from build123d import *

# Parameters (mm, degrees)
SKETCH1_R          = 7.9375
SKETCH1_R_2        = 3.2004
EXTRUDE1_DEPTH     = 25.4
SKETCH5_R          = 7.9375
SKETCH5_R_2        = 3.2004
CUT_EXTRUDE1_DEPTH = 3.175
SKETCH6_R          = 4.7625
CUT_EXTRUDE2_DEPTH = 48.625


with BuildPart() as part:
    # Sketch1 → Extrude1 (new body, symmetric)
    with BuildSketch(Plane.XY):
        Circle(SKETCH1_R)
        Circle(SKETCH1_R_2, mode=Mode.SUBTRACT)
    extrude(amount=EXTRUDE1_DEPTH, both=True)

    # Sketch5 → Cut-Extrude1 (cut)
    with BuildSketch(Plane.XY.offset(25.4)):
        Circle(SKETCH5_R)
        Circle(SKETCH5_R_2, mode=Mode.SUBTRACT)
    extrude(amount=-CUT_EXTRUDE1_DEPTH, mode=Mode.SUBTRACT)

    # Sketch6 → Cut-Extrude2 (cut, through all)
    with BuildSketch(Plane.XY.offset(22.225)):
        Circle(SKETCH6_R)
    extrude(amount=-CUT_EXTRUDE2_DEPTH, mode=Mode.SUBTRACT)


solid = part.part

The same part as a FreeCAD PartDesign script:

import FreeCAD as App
import Part
import Sketcher
Q = App.Units.Quantity

doc = App.newDocument("Part")
params = doc.addObject("Spreadsheet::Sheet", "Params")
for row, (alias, value) in enumerate([
    ("sketch1_diameter", "0.625 in"),
    ("sketch1_diameter2", "0.252 in"),
    ("pad1_length", "2 in"),
    ("sketch2_diameter", "0.625 in"),
    ("sketch2_diameter2", "0.252 in"),
    ("pocket1_length", "0.125 in"),
    ("sketch3_diameter", "0.375 in"),
], start=1):
    params.set(f"A{row}", alias)
    params.set(f"B{row}", "=" + value)
    params.setAlias(f"B{row}", alias)

body = doc.addObject("PartDesign::Body", "Body")

# Sketch on XY plane
sketch1 = body.newObject("Sketcher::SketchObject", "Sketch")
sketch1.AttachmentSupport = (doc.getObject("XY_Plane"), [""])
sketch1.MapMode = "FlatFace"
sketch1.addGeometry([
    Part.Circle(App.Vector(0, 0, 0), App.Vector(0, 0, 1), 7.9),
    Part.Circle(App.Vector(0, 0, 0), App.Vector(0, 0, 1), 3.2),
], False)
sketch1.addConstraint([
    Sketcher.Constraint("Coincident", 0, 3, -1, 1),
    Sketcher.Constraint("Coincident", 1, 3, -1, 1),
    Sketcher.Constraint("Diameter", 0, Q("0.625 in")),
    Sketcher.Constraint("Diameter", 1, Q("0.252 in")),
])
sketch1.setExpression("Constraints[2]", "Params.sketch1_diameter")
sketch1.setExpression("Constraints[3]", "Params.sketch1_diameter2")
pad1 = body.newObject("PartDesign::Pad", "Pad")
pad1.Profile = sketch1
pad1.setExpression("Length", "Params.pad1_length")
pad1.Midplane = True

# Sketch on XY plane
sketch2 = body.newObject("Sketcher::SketchObject", "Sketch001")
sketch2.AttachmentSupport = (doc.getObject("XY_Plane"), [""])
sketch2.MapMode = "FlatFace"
sketch2.AttachmentOffset = App.Placement(App.Vector(0, 0, 1 * 25.4), App.Rotation())
sketch2.addGeometry([
    Part.Circle(App.Vector(0, 0, 0), App.Vector(0, 0, 1), 7.9),
    Part.Circle(App.Vector(0, 0, 0), App.Vector(0, 0, 1), 3.2),
], False)
sketch2.addConstraint([
    Sketcher.Constraint("Coincident", 0, 3, -1, 1),
    Sketcher.Constraint("Coincident", 1, 3, -1, 1),
    Sketcher.Constraint("Diameter", 0, Q("0.625 in")),
    Sketcher.Constraint("Diameter", 1, Q("0.252 in")),
])
sketch2.setExpression("Constraints[2]", "Params.sketch2_diameter")
sketch2.setExpression("Constraints[3]", "Params.sketch2_diameter2")
pocket1 = body.newObject("PartDesign::Pocket", "Pocket")
pocket1.Profile = sketch2
pocket1.setExpression("Length", "Params.pocket1_length")

# Sketch on XY plane
sketch3 = body.newObject("Sketcher::SketchObject", "Sketch002")
sketch3.AttachmentSupport = (doc.getObject("XY_Plane"), [""])
sketch3.MapMode = "FlatFace"
sketch3.AttachmentOffset = App.Placement(App.Vector(0, 0, 0.875 * 25.4), App.Rotation())
sketch3.addGeometry(Part.Circle(App.Vector(0, 0, 0), App.Vector(0, 0, 1), 4.8), False)
sketch3.addConstraint([
    Sketcher.Constraint("Coincident", 0, 3, -1, 1),
    Sketcher.Constraint("Diameter", 0, Q("0.375 in")),
])
sketch3.setExpression("Constraints[1]", "Params.sketch3_diameter")
pocket2 = body.newObject("PartDesign::Pocket", "Pocket001")
pocket2.Profile = sketch3
pocket2.Type = "ThroughAll"

doc.recompute()
